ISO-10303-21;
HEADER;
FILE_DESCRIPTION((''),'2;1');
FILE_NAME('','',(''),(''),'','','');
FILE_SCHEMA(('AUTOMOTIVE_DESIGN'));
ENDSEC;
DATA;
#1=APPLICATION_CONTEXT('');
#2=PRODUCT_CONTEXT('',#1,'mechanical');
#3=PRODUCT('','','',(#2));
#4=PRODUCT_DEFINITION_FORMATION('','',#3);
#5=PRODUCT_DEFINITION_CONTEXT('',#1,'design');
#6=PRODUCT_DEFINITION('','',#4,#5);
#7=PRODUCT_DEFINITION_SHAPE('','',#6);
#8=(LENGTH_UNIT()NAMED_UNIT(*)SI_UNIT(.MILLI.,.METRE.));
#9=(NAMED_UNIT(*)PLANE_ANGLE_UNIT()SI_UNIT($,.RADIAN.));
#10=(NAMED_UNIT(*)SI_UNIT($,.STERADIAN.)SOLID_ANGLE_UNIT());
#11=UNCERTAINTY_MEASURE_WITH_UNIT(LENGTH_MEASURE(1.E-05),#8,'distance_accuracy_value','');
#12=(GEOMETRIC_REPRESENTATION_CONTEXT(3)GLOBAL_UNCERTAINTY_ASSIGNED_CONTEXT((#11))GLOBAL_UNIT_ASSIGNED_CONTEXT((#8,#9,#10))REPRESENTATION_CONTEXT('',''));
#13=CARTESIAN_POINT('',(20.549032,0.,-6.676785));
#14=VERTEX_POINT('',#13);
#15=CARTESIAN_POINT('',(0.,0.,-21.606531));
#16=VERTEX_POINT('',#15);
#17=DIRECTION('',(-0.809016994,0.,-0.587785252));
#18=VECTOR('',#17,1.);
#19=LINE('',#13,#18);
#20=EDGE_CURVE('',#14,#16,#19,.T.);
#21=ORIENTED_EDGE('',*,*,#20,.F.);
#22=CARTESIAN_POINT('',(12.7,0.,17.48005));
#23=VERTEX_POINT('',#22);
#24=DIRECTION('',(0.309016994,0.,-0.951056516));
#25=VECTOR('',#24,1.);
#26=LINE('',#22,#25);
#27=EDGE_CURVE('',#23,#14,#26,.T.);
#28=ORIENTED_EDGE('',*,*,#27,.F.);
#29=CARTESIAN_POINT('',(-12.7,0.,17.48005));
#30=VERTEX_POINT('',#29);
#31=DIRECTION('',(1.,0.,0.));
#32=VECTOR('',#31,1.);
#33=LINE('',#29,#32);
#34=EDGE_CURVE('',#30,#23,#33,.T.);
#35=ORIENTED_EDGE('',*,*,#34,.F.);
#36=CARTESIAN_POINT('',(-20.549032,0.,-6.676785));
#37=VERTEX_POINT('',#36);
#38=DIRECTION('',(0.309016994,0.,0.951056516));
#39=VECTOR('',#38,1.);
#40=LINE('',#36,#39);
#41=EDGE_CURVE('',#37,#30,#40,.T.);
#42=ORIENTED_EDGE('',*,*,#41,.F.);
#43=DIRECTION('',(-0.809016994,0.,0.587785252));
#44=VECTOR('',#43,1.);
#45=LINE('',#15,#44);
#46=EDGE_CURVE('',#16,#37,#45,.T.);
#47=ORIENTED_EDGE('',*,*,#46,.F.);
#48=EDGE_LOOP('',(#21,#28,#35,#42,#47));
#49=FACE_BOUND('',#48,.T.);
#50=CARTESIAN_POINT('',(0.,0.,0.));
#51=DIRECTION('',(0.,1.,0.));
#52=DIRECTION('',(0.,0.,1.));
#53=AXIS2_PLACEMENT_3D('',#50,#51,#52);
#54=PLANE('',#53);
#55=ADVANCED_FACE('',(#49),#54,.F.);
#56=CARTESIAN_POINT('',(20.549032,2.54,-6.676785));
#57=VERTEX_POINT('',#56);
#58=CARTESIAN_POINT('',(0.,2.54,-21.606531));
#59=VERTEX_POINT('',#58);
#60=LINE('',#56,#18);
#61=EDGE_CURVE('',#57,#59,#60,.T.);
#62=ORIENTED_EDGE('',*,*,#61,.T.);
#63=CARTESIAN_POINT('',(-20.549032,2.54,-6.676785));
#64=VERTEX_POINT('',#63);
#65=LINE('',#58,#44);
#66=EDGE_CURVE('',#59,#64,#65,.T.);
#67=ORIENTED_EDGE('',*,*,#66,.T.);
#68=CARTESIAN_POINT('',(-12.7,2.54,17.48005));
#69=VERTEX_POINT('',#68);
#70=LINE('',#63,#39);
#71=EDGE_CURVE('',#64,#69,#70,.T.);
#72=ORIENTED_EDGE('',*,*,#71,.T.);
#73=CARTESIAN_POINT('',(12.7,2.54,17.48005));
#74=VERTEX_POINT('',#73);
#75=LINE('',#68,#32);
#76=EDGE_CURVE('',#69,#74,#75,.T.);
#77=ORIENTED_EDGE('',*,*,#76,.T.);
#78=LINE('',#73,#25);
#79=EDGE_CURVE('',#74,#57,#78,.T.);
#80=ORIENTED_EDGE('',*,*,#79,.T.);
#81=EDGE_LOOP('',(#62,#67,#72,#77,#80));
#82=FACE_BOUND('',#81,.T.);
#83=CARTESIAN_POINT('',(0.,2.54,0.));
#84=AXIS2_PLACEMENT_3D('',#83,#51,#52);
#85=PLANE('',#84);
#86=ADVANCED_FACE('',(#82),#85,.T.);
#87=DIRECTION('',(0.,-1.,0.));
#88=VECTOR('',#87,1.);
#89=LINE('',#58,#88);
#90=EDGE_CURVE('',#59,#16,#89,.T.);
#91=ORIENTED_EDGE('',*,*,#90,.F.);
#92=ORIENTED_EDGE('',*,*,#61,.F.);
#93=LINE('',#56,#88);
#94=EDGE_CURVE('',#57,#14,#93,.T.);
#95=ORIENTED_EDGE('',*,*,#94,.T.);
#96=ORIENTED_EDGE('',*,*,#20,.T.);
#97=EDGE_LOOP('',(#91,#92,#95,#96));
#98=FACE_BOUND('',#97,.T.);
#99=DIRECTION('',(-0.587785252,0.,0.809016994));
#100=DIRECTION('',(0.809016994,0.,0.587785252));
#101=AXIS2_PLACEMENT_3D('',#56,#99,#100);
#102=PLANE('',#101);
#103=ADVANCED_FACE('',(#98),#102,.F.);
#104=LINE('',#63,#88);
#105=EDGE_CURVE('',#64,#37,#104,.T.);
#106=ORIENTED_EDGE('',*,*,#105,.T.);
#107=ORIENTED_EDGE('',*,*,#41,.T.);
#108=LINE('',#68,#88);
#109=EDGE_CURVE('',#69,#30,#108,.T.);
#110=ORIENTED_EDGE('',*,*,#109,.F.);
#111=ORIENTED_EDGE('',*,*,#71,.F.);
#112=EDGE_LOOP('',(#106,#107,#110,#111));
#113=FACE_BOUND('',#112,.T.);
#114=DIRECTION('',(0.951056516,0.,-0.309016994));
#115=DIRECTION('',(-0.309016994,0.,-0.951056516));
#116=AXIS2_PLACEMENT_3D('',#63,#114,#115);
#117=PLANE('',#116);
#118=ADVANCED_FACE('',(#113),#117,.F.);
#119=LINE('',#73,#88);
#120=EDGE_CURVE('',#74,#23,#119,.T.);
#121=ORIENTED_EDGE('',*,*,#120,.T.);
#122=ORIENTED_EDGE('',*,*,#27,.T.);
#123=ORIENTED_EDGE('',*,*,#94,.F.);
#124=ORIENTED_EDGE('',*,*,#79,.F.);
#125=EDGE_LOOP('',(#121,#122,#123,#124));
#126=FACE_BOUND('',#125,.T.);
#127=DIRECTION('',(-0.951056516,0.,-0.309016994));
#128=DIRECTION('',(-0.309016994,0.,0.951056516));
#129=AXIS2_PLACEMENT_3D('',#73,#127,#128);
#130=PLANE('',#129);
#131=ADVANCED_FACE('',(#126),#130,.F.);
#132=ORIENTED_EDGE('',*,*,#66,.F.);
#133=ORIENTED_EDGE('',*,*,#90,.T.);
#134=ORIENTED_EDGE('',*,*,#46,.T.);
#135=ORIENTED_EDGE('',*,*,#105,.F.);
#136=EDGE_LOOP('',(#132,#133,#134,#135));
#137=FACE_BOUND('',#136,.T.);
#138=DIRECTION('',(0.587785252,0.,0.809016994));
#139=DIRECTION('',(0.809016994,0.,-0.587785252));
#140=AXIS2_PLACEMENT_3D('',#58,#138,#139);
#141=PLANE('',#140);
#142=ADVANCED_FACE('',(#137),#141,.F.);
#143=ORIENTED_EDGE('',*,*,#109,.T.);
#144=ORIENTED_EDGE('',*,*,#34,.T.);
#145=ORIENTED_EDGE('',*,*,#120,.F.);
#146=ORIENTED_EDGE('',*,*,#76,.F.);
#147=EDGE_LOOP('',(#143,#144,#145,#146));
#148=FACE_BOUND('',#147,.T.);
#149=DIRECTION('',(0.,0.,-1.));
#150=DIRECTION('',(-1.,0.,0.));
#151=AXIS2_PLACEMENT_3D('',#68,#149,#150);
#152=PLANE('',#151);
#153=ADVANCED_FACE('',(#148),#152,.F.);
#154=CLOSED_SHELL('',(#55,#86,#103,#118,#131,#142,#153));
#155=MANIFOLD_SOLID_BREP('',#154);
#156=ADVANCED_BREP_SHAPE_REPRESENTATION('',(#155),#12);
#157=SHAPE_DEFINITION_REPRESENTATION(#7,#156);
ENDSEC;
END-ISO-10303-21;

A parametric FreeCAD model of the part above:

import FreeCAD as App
import Part
import Sketcher
Q = App.Units.Quantity

doc = App.newDocument("Part")
body = doc.addObject("PartDesign::Body", "Body")

# Sketch on XZ plane
sketch1 = body.newObject("Sketcher::SketchObject", "Sketch")
sketch1.AttachmentSupport = (doc.getObject("XZ_Plane"), [""])
sketch1.MapMode = "FlatFace"
sketch1.addGeometry([
    Part.LineSegment(App.Vector(0, -22, 0), App.Vector(-21, -7, 0)),  # 0
    Part.LineSegment(App.Vector(-21, -7, 0), App.Vector(-13, 17, 0)),  # 1
    Part.LineSegment(App.Vector(-13, 17, 0), App.Vector(13, 17, 0)),  # 2
    Part.LineSegment(App.Vector(13, 17, 0), App.Vector(21, -7, 0)),  # 3
    Part.LineSegment(App.Vector(21, -7, 0), App.Vector(0, -22, 0)),  # 4
], False)
sketch1.addConstraint([
    Sketcher.Constraint("Coincident", 0, 2, 1, 1),
    Sketcher.Constraint("Coincident", 1, 2, 2, 1),
    Sketcher.Constraint("Coincident", 2, 2, 3, 1),
    Sketcher.Constraint("Coincident", 3, 2, 4, 1),
    Sketcher.Constraint("Coincident", 4, 2, 0, 1),
    Sketcher.Constraint("Horizontal", 2),
    Sketcher.Constraint("Symmetric", 0, 2, 3, 2, -2),
    Sketcher.Constraint("PointOnObject", 4, 2, -2),
    Sketcher.Constraint("Equal", 0, 1),
    Sketcher.Constraint("Equal", 1, 3),
    Sketcher.Constraint("DistanceX", 2, 1, 2, 2, Q("1 in")),
    Sketcher.Constraint("Distance", 0, Q("1 in")),
    Sketcher.Constraint("Angle", 0, Q("144 deg")),
    Sketcher.Constraint("DistanceY", -1, 1, 1, 2, Q("17.48005 mm")),
])
pad1 = body.newObject("PartDesign::Pad", "Pad")
pad1.Profile = sketch1
pad1.Length = Q("0.1 in")
pad1.Reversed = True

doc.recompute()
